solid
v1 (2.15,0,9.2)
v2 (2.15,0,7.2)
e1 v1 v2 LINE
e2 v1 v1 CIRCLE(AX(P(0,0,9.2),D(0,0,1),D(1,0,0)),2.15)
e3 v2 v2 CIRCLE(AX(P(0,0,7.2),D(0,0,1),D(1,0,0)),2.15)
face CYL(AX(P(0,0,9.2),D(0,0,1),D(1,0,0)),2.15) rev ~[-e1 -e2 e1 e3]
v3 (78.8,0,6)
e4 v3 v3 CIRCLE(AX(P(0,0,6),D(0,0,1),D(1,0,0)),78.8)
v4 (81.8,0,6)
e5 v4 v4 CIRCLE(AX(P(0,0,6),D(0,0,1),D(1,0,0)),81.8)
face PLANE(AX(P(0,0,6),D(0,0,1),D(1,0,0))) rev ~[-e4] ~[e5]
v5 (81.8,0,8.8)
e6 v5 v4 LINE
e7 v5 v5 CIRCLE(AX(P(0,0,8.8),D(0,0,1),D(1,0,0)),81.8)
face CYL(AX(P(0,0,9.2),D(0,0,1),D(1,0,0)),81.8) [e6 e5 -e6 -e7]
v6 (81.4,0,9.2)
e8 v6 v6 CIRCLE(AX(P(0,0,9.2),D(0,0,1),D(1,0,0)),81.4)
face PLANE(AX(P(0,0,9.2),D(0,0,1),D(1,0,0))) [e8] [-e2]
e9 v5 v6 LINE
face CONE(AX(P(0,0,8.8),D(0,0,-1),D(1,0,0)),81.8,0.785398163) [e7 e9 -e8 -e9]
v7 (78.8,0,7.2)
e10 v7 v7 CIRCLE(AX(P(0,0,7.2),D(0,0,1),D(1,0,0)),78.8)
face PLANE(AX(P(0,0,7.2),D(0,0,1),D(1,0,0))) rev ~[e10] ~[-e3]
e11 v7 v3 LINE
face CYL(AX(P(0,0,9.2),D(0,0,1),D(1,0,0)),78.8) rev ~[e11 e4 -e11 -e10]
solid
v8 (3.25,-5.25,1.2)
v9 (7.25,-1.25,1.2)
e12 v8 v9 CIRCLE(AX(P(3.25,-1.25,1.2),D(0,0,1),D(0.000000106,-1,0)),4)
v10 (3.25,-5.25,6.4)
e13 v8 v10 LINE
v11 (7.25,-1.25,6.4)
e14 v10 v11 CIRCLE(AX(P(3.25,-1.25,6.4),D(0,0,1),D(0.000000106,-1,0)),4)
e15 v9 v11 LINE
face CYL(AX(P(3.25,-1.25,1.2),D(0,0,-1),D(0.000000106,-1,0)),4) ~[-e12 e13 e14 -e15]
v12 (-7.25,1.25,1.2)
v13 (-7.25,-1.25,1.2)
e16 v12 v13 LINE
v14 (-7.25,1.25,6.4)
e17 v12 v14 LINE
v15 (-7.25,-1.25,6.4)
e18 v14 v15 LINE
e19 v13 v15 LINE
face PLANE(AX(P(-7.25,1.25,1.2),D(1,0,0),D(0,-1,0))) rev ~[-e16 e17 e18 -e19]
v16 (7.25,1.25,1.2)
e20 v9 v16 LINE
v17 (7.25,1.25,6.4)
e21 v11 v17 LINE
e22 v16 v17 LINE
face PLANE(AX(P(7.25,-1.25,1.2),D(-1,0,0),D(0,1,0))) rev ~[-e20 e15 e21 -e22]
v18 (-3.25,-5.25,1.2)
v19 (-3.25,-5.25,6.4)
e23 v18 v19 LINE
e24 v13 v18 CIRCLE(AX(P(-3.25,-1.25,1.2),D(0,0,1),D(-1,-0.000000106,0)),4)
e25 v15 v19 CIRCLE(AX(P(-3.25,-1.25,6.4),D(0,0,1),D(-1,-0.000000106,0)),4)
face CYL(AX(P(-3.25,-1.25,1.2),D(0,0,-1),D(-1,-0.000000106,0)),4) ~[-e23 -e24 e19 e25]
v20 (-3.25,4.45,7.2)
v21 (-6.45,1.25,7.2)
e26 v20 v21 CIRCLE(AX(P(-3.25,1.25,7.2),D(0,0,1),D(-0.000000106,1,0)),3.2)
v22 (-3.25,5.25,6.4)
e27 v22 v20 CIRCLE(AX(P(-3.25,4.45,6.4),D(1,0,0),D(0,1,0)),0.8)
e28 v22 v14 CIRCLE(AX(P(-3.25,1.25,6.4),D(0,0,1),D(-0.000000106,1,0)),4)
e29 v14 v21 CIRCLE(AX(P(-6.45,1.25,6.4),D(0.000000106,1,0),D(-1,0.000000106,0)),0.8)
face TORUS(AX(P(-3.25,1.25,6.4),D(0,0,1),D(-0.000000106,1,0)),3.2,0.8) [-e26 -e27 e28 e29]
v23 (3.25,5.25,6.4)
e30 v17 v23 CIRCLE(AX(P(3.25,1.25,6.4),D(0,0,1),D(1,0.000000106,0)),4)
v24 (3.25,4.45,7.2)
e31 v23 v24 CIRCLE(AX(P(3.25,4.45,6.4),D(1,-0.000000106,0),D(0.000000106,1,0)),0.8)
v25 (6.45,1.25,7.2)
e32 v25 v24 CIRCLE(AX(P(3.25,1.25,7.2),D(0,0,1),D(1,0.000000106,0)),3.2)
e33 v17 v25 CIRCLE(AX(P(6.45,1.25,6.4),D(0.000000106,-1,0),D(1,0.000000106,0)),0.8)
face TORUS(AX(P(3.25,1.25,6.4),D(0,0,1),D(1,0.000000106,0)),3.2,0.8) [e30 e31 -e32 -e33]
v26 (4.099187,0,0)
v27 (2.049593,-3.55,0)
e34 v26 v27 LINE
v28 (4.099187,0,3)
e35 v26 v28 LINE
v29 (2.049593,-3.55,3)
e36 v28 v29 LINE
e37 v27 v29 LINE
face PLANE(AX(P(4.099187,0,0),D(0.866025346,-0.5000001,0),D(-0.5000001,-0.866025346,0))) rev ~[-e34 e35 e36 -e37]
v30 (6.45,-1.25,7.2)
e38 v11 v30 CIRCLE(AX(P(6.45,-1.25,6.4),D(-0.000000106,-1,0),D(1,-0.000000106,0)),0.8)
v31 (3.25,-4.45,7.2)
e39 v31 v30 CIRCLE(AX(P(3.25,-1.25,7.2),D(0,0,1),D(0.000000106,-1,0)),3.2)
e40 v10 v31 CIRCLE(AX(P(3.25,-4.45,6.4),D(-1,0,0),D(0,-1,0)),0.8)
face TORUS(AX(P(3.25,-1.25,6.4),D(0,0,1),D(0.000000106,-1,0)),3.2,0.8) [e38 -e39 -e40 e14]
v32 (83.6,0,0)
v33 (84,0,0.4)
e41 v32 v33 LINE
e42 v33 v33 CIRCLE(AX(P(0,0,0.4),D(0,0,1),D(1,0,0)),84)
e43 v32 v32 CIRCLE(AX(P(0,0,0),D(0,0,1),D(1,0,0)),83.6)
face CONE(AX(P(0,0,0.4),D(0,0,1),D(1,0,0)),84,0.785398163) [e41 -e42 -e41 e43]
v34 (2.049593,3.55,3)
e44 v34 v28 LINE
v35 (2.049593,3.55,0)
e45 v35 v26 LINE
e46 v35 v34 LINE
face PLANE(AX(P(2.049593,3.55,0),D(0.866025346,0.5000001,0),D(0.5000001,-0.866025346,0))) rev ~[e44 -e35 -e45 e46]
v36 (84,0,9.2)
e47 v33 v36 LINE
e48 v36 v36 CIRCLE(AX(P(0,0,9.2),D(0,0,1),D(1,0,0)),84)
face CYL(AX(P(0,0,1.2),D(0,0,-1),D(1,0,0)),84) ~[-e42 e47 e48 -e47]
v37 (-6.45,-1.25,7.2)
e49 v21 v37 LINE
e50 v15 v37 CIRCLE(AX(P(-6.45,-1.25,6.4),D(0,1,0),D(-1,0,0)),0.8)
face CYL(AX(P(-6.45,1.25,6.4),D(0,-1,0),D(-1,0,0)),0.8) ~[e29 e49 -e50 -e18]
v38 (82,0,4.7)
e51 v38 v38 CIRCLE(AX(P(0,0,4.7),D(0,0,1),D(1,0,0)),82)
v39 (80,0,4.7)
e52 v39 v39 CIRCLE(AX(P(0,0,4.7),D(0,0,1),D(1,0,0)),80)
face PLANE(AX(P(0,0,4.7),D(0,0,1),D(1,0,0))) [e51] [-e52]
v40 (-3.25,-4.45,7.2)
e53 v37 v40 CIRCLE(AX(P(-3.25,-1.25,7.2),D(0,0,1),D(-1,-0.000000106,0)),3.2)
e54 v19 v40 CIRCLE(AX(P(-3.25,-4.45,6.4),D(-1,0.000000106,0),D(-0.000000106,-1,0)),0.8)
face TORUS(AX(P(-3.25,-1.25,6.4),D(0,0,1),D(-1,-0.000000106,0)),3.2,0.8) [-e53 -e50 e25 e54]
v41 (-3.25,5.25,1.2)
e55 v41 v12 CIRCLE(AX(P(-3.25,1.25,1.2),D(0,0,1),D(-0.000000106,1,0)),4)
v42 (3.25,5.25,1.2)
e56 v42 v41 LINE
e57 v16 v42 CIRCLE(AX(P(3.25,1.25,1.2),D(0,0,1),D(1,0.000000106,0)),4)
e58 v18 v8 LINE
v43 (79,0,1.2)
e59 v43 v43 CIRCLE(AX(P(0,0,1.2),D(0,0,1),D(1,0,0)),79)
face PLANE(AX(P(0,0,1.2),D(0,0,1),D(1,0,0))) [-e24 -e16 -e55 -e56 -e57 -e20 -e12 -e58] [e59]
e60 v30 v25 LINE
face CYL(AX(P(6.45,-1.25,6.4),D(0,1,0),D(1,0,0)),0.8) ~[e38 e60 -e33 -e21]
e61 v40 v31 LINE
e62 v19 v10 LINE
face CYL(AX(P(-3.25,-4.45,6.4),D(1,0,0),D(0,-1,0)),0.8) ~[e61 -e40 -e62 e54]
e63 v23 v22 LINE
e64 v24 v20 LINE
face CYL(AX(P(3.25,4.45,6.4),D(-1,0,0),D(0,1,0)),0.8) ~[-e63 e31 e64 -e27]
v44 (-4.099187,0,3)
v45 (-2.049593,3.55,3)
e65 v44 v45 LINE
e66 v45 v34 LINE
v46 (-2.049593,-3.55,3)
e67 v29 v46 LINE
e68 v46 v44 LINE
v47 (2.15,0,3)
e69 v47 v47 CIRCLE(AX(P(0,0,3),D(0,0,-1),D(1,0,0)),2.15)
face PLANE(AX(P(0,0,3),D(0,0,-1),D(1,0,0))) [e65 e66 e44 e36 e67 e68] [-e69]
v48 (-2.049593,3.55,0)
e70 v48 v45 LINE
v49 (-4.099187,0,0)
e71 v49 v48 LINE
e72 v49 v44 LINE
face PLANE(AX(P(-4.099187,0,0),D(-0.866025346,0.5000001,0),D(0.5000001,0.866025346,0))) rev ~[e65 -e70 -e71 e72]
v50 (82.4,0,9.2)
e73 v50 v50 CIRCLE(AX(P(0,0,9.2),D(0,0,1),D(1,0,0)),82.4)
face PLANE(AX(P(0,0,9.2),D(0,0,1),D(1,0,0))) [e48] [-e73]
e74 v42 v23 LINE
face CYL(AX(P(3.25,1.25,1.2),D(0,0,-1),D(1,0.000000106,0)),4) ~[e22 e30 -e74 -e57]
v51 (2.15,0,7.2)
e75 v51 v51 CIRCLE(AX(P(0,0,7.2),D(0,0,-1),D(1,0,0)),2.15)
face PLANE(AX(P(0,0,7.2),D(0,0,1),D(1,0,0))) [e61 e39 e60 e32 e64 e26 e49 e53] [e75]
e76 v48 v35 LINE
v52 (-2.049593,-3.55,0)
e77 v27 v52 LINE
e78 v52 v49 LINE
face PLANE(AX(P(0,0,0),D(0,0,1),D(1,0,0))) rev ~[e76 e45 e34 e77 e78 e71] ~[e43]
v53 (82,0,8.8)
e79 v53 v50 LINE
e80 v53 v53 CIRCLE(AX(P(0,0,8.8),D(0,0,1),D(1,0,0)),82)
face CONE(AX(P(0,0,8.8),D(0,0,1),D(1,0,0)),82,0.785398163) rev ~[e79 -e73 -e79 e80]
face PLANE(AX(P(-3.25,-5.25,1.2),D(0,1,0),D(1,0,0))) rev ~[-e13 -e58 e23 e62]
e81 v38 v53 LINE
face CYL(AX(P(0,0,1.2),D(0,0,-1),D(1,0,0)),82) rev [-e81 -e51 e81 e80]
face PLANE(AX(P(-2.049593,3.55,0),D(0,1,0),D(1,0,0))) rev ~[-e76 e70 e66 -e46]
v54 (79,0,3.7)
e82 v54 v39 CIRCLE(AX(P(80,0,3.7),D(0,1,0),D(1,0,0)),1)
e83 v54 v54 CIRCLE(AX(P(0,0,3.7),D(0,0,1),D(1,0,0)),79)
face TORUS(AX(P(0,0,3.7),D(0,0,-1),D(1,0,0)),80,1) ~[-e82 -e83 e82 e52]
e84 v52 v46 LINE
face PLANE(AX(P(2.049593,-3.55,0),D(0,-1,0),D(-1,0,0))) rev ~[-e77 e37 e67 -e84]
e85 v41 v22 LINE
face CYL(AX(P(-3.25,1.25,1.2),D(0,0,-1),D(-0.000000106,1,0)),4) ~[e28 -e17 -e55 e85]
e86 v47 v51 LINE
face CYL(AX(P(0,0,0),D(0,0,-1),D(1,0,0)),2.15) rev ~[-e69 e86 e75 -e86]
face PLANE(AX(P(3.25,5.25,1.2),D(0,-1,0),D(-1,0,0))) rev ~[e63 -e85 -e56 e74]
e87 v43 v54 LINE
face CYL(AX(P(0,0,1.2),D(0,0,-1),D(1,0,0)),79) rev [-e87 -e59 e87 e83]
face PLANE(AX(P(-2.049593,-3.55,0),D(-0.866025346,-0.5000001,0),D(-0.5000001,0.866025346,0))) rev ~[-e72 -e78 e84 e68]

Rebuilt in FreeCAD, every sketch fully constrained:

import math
import FreeCAD as App
import Part
import Sketcher

V = App.Vector
Q = App.Units.Quantity


def edges_at(feature, points):
    """Names of the edges that pass closest to the given points."""
    edges = feature.Shape.Edges
    near = lambda p: min(range(len(edges)), key=lambda i: edges[i].distToShape(Part.Vertex(*p))[0])
    return sorted({f"Edge{near(p) + 1}" for p in points})

doc = App.newDocument("Part")
body = doc.addObject("PartDesign::Body", "Body")

# Sketch on XY plane
sketch1 = doc.addObject("Sketcher::SketchObject", "Sketch")
body.addObject(sketch1)
sketch1.AttachmentSupport = (doc.XY_Plane, [""])
sketch1.MapMode = "FlatFace"
sketch1.addGeometry(Part.Circle(V(0, 0, 0), V(0, 0, 1), 84), False)
sketch1.addConstraint(Sketcher.Constraint("Coincident", 0, 3, -1, 1))
sketch1.addConstraint(Sketcher.Constraint("Diameter", 0, Q("168 mm")))
pad1 = doc.addObject("PartDesign::Pad", "Pad")
body.addObject(pad1)
pad1.Profile = sketch1
pad1.Length = 1.2

# Sketch on XY plane
sketch2 = doc.addObject("Sketcher::SketchObject", "Sketch001")
body.addObject(sketch2)
sketch2.AttachmentSupport = (doc.XY_Plane, [""])
sketch2.MapMode = "FlatFace"
sketch2.AttachmentOffset = App.Placement(V(0, 0, 1.2), App.Rotation())
sketch2.addGeometry(Part.Circle(V(0, 0, 0), V(0, 0, 1), 84), False)
sketch2.addGeometry(Part.Circle(V(0, 0, 0), V(0, 0, 1), 82), False)
sketch2.addConstraint(Sketcher.Constraint("Coincident", 0, 3, -1, 1))
sketch2.addConstraint(Sketcher.Constraint("Coincident", 1, 3, -1, 1))
sketch2.addConstraint(Sketcher.Constraint("Diameter", 0, Q("168 mm")))
sketch2.addConstraint(Sketcher.Constraint("Diameter", 1, Q("164 mm")))
pad2 = doc.addObject("PartDesign::Pad", "Pad001")
body.addObject(pad2)
pad2.Profile = sketch2
pad2.Length = 8

# Sketch on XY plane
sketch3 = doc.addObject("Sketcher::SketchObject", "Sketch002")
body.addObject(sketch3)
sketch3.AttachmentSupport = (doc.XY_Plane, [""])
sketch3.MapMode = "FlatFace"
sketch3.AttachmentOffset = App.Placement(V(0, 0, 1.2), App.Rotation())
sketch3.addGeometry(Part.Circle(V(0, 0, 0), V(0, 0, 1), 82), False)
sketch3.addGeometry(Part.Circle(V(0, 0, 0), V(0, 0, 1), 79), False)
sketch3.addConstraint(Sketcher.Constraint("Coincident", 0, 3, -1, 1))
sketch3.addConstraint(Sketcher.Constraint("Coincident", 1, 3, -1, 1))
sketch3.addConstraint(Sketcher.Constraint("Diameter", 0, Q("164 mm")))
sketch3.addConstraint(Sketcher.Constraint("Diameter", 1, Q("158 mm")))
pad3 = doc.addObject("PartDesign::Pad", "Pad002")
body.addObject(pad3)
pad3.Profile = sketch3
pad3.Length = 3.5
doc.recompute()

fillet = doc.addObject("PartDesign::Fillet", "Fillet")
body.addObject(fillet)
fillet.Base = (pad3, edges_at(pad3, [(-79, 0, 4.7)]))
fillet.Radius = 1

# Sketch on XY plane
sketch4 = doc.addObject("Sketcher::SketchObject", "Sketch003")
body.addObject(sketch4)
sketch4.AttachmentSupport = (doc.XY_Plane, [""])
sketch4.MapMode = "FlatFace"
sketch4.AttachmentOffset = App.Placement(V(0, 0, 1.2), App.Rotation())
sketch4.addGeometry(Part.LineSegment(V(-3.2, -5.2, 0), V(3.2, -5.2, 0)), False)
sketch4.addGeometry(Part.ArcOfCircle(Part.Circle(V(3.2, -1.2, 0), V(0, 0, 1), 4), math.radians(-90), math.radians(0)), False)
sketch4.addGeometry(Part.LineSegment(V(7.2, -1.2, 0), V(7.2, 1.2, 0)), False)
sketch4.addGeometry(Part.ArcOfCircle(Part.Circle(V(3.2, 1.2, 0), V(0, 0, 1), 4), math.radians(0), math.radians(90)), False)
sketch4.addGeometry(Part.LineSegment(V(3.2, 5.2, 0), V(-3.2, 5.2, 0)), False)
sketch4.addGeometry(Part.ArcOfCircle(Part.Circle(V(-3.2, 1.2, 0), V(0, 0, 1), 4), math.radians(90), math.radians(180)), False)
sketch4.addGeometry(Part.LineSegment(V(-7.2, 1.2, 0), V(-7.2, -1.2, 0)), False)
sketch4.addGeometry(Part.ArcOfCircle(Part.Circle(V(-3.2, -1.2, 0), V(0, 0, 1), 4), math.radians(-180), math.radians(-90)), False)
sketch4.addConstraint(Sketcher.Constraint("Tangent", 0, 2, 1, 1))
sketch4.addConstraint(Sketcher.Constraint("Tangent", 1, 2, 2, 1))
sketch4.addConstraint(Sketcher.Constraint("Tangent", 2, 2, 3, 1))
sketch4.addConstraint(Sketcher.Constraint("Tangent", 3, 2, 4, 1))
sketch4.addConstraint(Sketcher.Constraint("Tangent", 4, 2, 5, 1))
sketch4.addConstraint(Sketcher.Constraint("Tangent", 5, 2, 6, 1))
sketch4.addConstraint(Sketcher.Constraint("Tangent", 6, 2, 7, 1))
sketch4.addConstraint(Sketcher.Constraint("Tangent", 7, 2, 0, 1))
sketch4.addConstraint(Sketcher.Constraint("Horizontal", 0))
sketch4.addConstraint(Sketcher.Constraint("Vertical", 2))
sketch4.addConstraint(Sketcher.Constraint("Horizontal", 4))
sketch4.addConstraint(Sketcher.Constraint("Vertical", 6))
sketch4.addConstraint(Sketcher.Constraint("Equal", 1, 3))
sketch4.addConstraint(Sketcher.Constraint("Equal", 3, 5))
sketch4.addConstraint(Sketcher.Constraint("Equal", 5, 7))
sketch4.addConstraint(Sketcher.Constraint("Symmetric", 1, 3, 5, 3, -1, 1))
sketch4.addConstraint(Sketcher.Constraint("Radius", 1, Q("4 mm")))
sketch4.addConstraint(Sketcher.Constraint("DistanceX", 0, 1, 0, 2, Q("6.5 mm")))
sketch4.addConstraint(Sketcher.Constraint("DistanceY", 2, 1, 2, 2, Q("2.5 mm")))
pad4 = doc.addObject("PartDesign::Pad", "Pad003")
body.addObject(pad4)
pad4.Profile = sketch4
pad4.Length = 6

# Sketch on XY plane
sketch5 = doc.addObject("Sketcher::SketchObject", "Sketch004")
body.addObject(sketch5)
sketch5.AttachmentSupport = (doc.XY_Plane, [""])
sketch5.MapMode = "FlatFace"
sketch5.addGeometry(Part.Circle(V(0, 0, 0), V(0, 0, 1), 2.1), False)
sketch5.addConstraint(Sketcher.Constraint("Coincident", 0, 3, -1, 1))
sketch5.addConstraint(Sketcher.Constraint("Diameter", 0, Q("4.3 mm")))
pocket1 = doc.addObject("PartDesign::Pocket", "Pocket")
body.addObject(pocket1)
pocket1.Profile = sketch5
pocket1.Type = "ThroughAll"
pocket1.Reversed = True

# Sketch on XY plane
sketch6 = doc.addObject("Sketcher::SketchObject", "Sketch005")
body.addObject(sketch6)
sketch6.AttachmentSupport = (doc.XY_Plane, [""])
sketch6.MapMode = "FlatFace"
sketch6.addGeometry(Part.LineSegment(V(-2, -3.5, 0), V(-4.1, 0, 0)), False)
sketch6.addGeometry(Part.LineSegment(V(-4.1, 0, 0), V(-2, 3.5, 0)), False)
sketch6.addGeometry(Part.LineSegment(V(-2, 3.5, 0), V(2, 3.5, 0)), False)
sketch6.addGeometry(Part.LineSegment(V(2, 3.5, 0), V(4.1, 0, 0)), False)
sketch6.addGeometry(Part.LineSegment(V(4.1, 0, 0), V(2, -3.5, 0)), False)
sketch6.addGeometry(Part.LineSegment(V(2, -3.5, 0), V(-2, -3.5, 0)), False)
sketch6.addConstraint(Sketcher.Constraint("Coincident", 0, 2, 1, 1))
sketch6.addConstraint(Sketcher.Constraint("Coincident", 1, 2, 2, 1))
sketch6.addConstraint(Sketcher.Constraint("Coincident", 2, 2, 3, 1))
sketch6.addConstraint(Sketcher.Constraint("Coincident", 3, 2, 4, 1))
sketch6.addConstraint(Sketcher.Constraint("Coincident", 4, 2, 5, 1))
sketch6.addConstraint(Sketcher.Constraint("Coincident", 5, 2, 0, 1))
sketch6.addConstraint(Sketcher.Constraint("Horizontal", 2))
sketch6.addConstraint(Sketcher.Constraint("Horizontal", 5))
sketch6.addConstraint(Sketcher.Constraint("Symmetric", 0, 2, 3, 2, -1, 1))
sketch6.addConstraint(Sketcher.Constraint("Symmetric", 1, 2, 4, 2, -1, 1))
sketch6.addConstraint(Sketcher.Constraint("PointOnObject", 0, 2, -1))
sketch6.addConstraint(Sketcher.Constraint("Parallel", 0, 3))
sketch6.addConstraint(Sketcher.Constraint("Vertical", 2, 2, 4, 2))
sketch6.addConstraint(Sketcher.Constraint("Angle", 0, Q("120.000007 deg")))
sketch6.addConstraint(Sketcher.Constraint("DistanceY", 4, 2, 2, 2, Q("7.1 mm")))
sketch6.addConstraint(Sketcher.Constraint("DistanceX", 2, 1, 2, 2, Q("4.099186 mm")))
pocket2 = doc.addObject("PartDesign::Pocket", "Pocket001")
body.addObject(pocket2)
pocket2.Profile = sketch6
pocket2.Length = 3
pocket2.Reversed = True
doc.recompute()

fillet2 = doc.addObject("PartDesign::Fillet", "Fillet001")
body.addObject(fillet2)
fillet2.Base = (pocket2, edges_at(pocket2, [(6.078, 4.078, 7.2)]))
fillet2.Radius = 0.8
doc.recompute()

chamfer = doc.addObject("PartDesign::Chamfer", "Chamfer")
body.addObject(chamfer)
chamfer.Base = (fillet2, edges_at(fillet2, [(-82, 0, 9.2), (-84, 0, 0)]))
chamfer.Size = 0.4
body2 = doc.addObject("PartDesign::Body", "Body001")

# Sketch on XY plane
sketch7 = doc.addObject("Sketcher::SketchObject", "Sketch006")
body2.addObject(sketch7)
sketch7.AttachmentSupport = (doc.getObject("XY_Plane001"), [""])
sketch7.MapMode = "FlatFace"
sketch7.AttachmentOffset = App.Placement(V(0, 0, 9.2), App.Rotation())
sketch7.addGeometry(Part.Circle(V(0, 0, 0), V(0, 0, 1), 81.8), False)
sketch7.addGeometry(Part.Circle(V(0, 0, 0), V(0, 0, 1), 2.1), False)
sketch7.addConstraint(Sketcher.Constraint("Coincident", 0, 3, -1, 1))
sketch7.addConstraint(Sketcher.Constraint("Coincident", 1, 3, -1, 1))
sketch7.addConstraint(Sketcher.Constraint("Diameter", 0, Q("163.6 mm")))
sketch7.addConstraint(Sketcher.Constraint("Diameter", 1, Q("4.3 mm")))
pad5 = doc.addObject("PartDesign::Pad", "Pad004")
body2.addObject(pad5)
pad5.Profile = sketch7
pad5.Length = 2
pad5.Reversed = True

# Sketch on XY plane
sketch8 = doc.addObject("Sketcher::SketchObject", "Sketch007")
body2.addObject(sketch8)
sketch8.AttachmentSupport = (doc.getObject("XY_Plane001"), [""])
sketch8.MapMode = "FlatFace"
sketch8.AttachmentOffset = App.Placement(V(0, 0, 9.2), App.Rotation())
sketch8.addGeometry(Part.Circle(V(0, 0, 0), V(0, 0, 1), 82), False)
sketch8.addGeometry(Part.Circle(V(0, 0, 0), V(0, 0, 1), 79), False)
sketch8.addConstraint(Sketcher.Constraint("Coincident", 0, 3, -1, 1))
sketch8.addConstraint(Sketcher.Constraint("Coincident", 1, 3, -1, 1))
sketch8.addConstraint(Sketcher.Constraint("Diameter", 0, Q("163.6 mm")))
sketch8.addConstraint(Sketcher.Constraint("Diameter", 1, Q("157.6 mm")))
pad6 = doc.addObject("PartDesign::Pad", "Pad005")
body2.addObject(pad6)
pad6.Profile = sketch8
pad6.Length = 3.2
pad6.Reversed = True
doc.recompute()

chamfer2 = doc.addObject("PartDesign::Chamfer", "Chamfer001")
body2.addObject(chamfer2)
chamfer2.Base = (pad6, edges_at(pad6, [(-81.8, 0, 9.2)]))
chamfer2.Size = 0.4

doc.recompute()
